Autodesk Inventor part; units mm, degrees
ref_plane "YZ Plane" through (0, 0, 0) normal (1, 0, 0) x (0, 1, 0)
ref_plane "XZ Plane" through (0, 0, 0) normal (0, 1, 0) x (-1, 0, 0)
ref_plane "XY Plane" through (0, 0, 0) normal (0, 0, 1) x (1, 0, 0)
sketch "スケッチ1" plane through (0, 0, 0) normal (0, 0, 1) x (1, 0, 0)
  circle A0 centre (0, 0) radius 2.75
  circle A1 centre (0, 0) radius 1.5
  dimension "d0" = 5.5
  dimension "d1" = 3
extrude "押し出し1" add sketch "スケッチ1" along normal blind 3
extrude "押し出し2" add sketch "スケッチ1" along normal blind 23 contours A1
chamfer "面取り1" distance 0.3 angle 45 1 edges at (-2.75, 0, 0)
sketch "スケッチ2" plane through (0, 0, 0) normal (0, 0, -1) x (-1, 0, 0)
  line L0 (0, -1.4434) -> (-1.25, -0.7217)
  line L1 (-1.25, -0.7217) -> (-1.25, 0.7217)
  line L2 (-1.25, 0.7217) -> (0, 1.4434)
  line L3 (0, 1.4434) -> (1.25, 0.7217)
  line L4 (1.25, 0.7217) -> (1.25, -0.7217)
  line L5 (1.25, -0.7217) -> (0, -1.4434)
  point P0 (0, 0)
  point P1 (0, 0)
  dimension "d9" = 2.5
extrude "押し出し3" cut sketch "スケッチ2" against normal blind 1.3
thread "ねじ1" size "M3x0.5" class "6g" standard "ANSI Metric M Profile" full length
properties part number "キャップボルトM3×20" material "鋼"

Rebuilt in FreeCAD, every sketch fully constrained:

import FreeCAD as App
import Part
import Sketcher
Q = App.Units.Quantity


def edges_at(feature, points):
    """Names of the edges that pass closest to the given points."""
    edges = feature.Shape.Edges
    near = lambda p: min(range(len(edges)), key=lambda i: edges[i].distToShape(Part.Vertex(*p))[0])
    return sorted({f"Edge{near(p) + 1}" for p in points})

doc = App.newDocument("Part")
params = doc.addObject("Spreadsheet::Sheet", "Params")
for row, (alias, value) in enumerate([
    ("sketch1_diameter", "3 mm"),
    ("sketch1_diameter2", "5.5 mm"),
    ("pad1_length", "3 mm"),
    ("sketch2_diameter", "3 mm"),
    ("pad2_length", "23 mm"),
    ("chamfer_size", "0.3 mm"),
    ("pocket1_length", "1.3 mm"),
], start=1):
    params.set(f"A{row}", alias)
    params.set(f"B{row}", "=" + value)
    params.setAlias(f"B{row}", alias)

body = doc.addObject("PartDesign::Body", "Body")

# Sketch on XY plane
sketch1 = doc.addObject("Sketcher::SketchObject", "Sketch")
body.addObject(sketch1)
sketch1.AttachmentSupport = (doc.XY_Plane, [""])
sketch1.MapMode = "FlatFace"
sketch1.addGeometry([
    Part.Circle(App.Vector(0, 0, 0), App.Vector(0, 0, 1), 2.75),
    Part.Circle(App.Vector(0, 0, 0), App.Vector(0, 0, 1), 1.5),
], False)
sketch1.addConstraint([
    Sketcher.Constraint("Coincident", 0, 3, -1, 1),
    Sketcher.Constraint("Coincident", 1, 3, -1, 1),
    Sketcher.Constraint("Diameter", 1, Q("3 mm")),
    Sketcher.Constraint("Diameter", 0, Q("5.5 mm")),
])
sketch1.setExpression("Constraints[2]", "Params.sketch1_diameter")
sketch1.setExpression("Constraints[3]", "Params.sketch1_diameter2")
pad1 = doc.addObject("PartDesign::Pad", "Pad")
body.addObject(pad1)
pad1.Profile = sketch1
pad1.setExpression("Length", "Params.pad1_length")

# Sketch on XY plane
sketch2 = doc.addObject("Sketcher::SketchObject", "Sketch001")
body.addObject(sketch2)
sketch2.AttachmentSupport = (doc.XY_Plane, [""])
sketch2.MapMode = "FlatFace"
sketch2.addGeometry(Part.Circle(App.Vector(0, 0, 0), App.Vector(0, 0, 1), 1.5), False)
sketch2.addConstraint([
    Sketcher.Constraint("Coincident", 0, 3, -1, 1),
    Sketcher.Constraint("Diameter", 0, Q("3 mm")),
])
sketch2.setExpression("Constraints[1]", "Params.sketch2_diameter")
pad2 = doc.addObject("PartDesign::Pad", "Pad001")
body.addObject(pad2)
pad2.Profile = sketch2
pad2.setExpression("Length", "Params.pad2_length")
doc.recompute()

chamfer = doc.addObject("PartDesign::Chamfer", "Chamfer")
body.addObject(chamfer)
chamfer.Base = (pad2, edges_at(pad2, [(-2.75, 0, 0)]))
chamfer.setExpression("Size", "Params.chamfer_size")

# Sketch on XY plane
sketch3 = doc.addObject("Sketcher::SketchObject", "Sketch002")
body.addObject(sketch3)
sketch3.AttachmentSupport = (doc.XY_Plane, [""])
sketch3.MapMode = "FlatFace"
sketch3.addGeometry([
    Part.LineSegment(App.Vector(1.25, -0.7217, 0), App.Vector(0, -1.4434, 0)),  # 0
    Part.LineSegment(App.Vector(0, -1.4434, 0), App.Vector(-1.25, -0.7217, 0)),  # 1
    Part.LineSegment(App.Vector(-1.25, -0.7217, 0), App.Vector(-1.25, 0.7217, 0)),  # 2
    Part.LineSegment(App.Vector(-1.25, 0.7217, 0), App.Vector(0, 1.4434, 0)),  # 3
    Part.LineSegment(App.Vector(0, 1.4434, 0), App.Vector(1.25, 0.7217, 0)),  # 4
    Part.LineSegment(App.Vector(1.25, 0.7217, 0), App.Vector(1.25, -0.7217, 0)),  # 5
], False)
sketch3.addConstraint([
    Sketcher.Constraint("Coincident", 0, 2, 1, 1),
    Sketcher.Constraint("Coincident", 1, 2, 2, 1),
    Sketcher.Constraint("Coincident", 2, 2, 3, 1),
    Sketcher.Constraint("Coincident", 3, 2, 4, 1),
    Sketcher.Constraint("Coincident", 4, 2, 5, 1),
    Sketcher.Constraint("Coincident", 5, 2, 0, 1),
    Sketcher.Constraint("Vertical", 2),
    Sketcher.Constraint("Vertical", 5),
    Sketcher.Constraint("Symmetric", 0, 2, 3, 2, -1, 1),
    Sketcher.Constraint("Symmetric", 1, 2, 4, 2, -1, 1),
    Sketcher.Constraint("PointOnObject", 0, 2, -2),
    Sketcher.Constraint("Parallel", 0, 3),
    Sketcher.Constraint("Horizontal", 2, 2, 4, 2),
    Sketcher.Constraint("DistanceX", 2, 2, 4, 2, Q("2.5 mm")),
    Sketcher.Constraint("Angle", 0, Q("-149.9996 deg")),
    Sketcher.Constraint("DistanceY", 2, 1, 2, 2, Q("1.4434 mm")),
])
pocket1 = doc.addObject("PartDesign::Pocket", "Pocket")
body.addObject(pocket1)
pocket1.Profile = sketch3
pocket1.setExpression("Length", "Params.pocket1_length")
pocket1.Reversed = True

doc.recompute()
